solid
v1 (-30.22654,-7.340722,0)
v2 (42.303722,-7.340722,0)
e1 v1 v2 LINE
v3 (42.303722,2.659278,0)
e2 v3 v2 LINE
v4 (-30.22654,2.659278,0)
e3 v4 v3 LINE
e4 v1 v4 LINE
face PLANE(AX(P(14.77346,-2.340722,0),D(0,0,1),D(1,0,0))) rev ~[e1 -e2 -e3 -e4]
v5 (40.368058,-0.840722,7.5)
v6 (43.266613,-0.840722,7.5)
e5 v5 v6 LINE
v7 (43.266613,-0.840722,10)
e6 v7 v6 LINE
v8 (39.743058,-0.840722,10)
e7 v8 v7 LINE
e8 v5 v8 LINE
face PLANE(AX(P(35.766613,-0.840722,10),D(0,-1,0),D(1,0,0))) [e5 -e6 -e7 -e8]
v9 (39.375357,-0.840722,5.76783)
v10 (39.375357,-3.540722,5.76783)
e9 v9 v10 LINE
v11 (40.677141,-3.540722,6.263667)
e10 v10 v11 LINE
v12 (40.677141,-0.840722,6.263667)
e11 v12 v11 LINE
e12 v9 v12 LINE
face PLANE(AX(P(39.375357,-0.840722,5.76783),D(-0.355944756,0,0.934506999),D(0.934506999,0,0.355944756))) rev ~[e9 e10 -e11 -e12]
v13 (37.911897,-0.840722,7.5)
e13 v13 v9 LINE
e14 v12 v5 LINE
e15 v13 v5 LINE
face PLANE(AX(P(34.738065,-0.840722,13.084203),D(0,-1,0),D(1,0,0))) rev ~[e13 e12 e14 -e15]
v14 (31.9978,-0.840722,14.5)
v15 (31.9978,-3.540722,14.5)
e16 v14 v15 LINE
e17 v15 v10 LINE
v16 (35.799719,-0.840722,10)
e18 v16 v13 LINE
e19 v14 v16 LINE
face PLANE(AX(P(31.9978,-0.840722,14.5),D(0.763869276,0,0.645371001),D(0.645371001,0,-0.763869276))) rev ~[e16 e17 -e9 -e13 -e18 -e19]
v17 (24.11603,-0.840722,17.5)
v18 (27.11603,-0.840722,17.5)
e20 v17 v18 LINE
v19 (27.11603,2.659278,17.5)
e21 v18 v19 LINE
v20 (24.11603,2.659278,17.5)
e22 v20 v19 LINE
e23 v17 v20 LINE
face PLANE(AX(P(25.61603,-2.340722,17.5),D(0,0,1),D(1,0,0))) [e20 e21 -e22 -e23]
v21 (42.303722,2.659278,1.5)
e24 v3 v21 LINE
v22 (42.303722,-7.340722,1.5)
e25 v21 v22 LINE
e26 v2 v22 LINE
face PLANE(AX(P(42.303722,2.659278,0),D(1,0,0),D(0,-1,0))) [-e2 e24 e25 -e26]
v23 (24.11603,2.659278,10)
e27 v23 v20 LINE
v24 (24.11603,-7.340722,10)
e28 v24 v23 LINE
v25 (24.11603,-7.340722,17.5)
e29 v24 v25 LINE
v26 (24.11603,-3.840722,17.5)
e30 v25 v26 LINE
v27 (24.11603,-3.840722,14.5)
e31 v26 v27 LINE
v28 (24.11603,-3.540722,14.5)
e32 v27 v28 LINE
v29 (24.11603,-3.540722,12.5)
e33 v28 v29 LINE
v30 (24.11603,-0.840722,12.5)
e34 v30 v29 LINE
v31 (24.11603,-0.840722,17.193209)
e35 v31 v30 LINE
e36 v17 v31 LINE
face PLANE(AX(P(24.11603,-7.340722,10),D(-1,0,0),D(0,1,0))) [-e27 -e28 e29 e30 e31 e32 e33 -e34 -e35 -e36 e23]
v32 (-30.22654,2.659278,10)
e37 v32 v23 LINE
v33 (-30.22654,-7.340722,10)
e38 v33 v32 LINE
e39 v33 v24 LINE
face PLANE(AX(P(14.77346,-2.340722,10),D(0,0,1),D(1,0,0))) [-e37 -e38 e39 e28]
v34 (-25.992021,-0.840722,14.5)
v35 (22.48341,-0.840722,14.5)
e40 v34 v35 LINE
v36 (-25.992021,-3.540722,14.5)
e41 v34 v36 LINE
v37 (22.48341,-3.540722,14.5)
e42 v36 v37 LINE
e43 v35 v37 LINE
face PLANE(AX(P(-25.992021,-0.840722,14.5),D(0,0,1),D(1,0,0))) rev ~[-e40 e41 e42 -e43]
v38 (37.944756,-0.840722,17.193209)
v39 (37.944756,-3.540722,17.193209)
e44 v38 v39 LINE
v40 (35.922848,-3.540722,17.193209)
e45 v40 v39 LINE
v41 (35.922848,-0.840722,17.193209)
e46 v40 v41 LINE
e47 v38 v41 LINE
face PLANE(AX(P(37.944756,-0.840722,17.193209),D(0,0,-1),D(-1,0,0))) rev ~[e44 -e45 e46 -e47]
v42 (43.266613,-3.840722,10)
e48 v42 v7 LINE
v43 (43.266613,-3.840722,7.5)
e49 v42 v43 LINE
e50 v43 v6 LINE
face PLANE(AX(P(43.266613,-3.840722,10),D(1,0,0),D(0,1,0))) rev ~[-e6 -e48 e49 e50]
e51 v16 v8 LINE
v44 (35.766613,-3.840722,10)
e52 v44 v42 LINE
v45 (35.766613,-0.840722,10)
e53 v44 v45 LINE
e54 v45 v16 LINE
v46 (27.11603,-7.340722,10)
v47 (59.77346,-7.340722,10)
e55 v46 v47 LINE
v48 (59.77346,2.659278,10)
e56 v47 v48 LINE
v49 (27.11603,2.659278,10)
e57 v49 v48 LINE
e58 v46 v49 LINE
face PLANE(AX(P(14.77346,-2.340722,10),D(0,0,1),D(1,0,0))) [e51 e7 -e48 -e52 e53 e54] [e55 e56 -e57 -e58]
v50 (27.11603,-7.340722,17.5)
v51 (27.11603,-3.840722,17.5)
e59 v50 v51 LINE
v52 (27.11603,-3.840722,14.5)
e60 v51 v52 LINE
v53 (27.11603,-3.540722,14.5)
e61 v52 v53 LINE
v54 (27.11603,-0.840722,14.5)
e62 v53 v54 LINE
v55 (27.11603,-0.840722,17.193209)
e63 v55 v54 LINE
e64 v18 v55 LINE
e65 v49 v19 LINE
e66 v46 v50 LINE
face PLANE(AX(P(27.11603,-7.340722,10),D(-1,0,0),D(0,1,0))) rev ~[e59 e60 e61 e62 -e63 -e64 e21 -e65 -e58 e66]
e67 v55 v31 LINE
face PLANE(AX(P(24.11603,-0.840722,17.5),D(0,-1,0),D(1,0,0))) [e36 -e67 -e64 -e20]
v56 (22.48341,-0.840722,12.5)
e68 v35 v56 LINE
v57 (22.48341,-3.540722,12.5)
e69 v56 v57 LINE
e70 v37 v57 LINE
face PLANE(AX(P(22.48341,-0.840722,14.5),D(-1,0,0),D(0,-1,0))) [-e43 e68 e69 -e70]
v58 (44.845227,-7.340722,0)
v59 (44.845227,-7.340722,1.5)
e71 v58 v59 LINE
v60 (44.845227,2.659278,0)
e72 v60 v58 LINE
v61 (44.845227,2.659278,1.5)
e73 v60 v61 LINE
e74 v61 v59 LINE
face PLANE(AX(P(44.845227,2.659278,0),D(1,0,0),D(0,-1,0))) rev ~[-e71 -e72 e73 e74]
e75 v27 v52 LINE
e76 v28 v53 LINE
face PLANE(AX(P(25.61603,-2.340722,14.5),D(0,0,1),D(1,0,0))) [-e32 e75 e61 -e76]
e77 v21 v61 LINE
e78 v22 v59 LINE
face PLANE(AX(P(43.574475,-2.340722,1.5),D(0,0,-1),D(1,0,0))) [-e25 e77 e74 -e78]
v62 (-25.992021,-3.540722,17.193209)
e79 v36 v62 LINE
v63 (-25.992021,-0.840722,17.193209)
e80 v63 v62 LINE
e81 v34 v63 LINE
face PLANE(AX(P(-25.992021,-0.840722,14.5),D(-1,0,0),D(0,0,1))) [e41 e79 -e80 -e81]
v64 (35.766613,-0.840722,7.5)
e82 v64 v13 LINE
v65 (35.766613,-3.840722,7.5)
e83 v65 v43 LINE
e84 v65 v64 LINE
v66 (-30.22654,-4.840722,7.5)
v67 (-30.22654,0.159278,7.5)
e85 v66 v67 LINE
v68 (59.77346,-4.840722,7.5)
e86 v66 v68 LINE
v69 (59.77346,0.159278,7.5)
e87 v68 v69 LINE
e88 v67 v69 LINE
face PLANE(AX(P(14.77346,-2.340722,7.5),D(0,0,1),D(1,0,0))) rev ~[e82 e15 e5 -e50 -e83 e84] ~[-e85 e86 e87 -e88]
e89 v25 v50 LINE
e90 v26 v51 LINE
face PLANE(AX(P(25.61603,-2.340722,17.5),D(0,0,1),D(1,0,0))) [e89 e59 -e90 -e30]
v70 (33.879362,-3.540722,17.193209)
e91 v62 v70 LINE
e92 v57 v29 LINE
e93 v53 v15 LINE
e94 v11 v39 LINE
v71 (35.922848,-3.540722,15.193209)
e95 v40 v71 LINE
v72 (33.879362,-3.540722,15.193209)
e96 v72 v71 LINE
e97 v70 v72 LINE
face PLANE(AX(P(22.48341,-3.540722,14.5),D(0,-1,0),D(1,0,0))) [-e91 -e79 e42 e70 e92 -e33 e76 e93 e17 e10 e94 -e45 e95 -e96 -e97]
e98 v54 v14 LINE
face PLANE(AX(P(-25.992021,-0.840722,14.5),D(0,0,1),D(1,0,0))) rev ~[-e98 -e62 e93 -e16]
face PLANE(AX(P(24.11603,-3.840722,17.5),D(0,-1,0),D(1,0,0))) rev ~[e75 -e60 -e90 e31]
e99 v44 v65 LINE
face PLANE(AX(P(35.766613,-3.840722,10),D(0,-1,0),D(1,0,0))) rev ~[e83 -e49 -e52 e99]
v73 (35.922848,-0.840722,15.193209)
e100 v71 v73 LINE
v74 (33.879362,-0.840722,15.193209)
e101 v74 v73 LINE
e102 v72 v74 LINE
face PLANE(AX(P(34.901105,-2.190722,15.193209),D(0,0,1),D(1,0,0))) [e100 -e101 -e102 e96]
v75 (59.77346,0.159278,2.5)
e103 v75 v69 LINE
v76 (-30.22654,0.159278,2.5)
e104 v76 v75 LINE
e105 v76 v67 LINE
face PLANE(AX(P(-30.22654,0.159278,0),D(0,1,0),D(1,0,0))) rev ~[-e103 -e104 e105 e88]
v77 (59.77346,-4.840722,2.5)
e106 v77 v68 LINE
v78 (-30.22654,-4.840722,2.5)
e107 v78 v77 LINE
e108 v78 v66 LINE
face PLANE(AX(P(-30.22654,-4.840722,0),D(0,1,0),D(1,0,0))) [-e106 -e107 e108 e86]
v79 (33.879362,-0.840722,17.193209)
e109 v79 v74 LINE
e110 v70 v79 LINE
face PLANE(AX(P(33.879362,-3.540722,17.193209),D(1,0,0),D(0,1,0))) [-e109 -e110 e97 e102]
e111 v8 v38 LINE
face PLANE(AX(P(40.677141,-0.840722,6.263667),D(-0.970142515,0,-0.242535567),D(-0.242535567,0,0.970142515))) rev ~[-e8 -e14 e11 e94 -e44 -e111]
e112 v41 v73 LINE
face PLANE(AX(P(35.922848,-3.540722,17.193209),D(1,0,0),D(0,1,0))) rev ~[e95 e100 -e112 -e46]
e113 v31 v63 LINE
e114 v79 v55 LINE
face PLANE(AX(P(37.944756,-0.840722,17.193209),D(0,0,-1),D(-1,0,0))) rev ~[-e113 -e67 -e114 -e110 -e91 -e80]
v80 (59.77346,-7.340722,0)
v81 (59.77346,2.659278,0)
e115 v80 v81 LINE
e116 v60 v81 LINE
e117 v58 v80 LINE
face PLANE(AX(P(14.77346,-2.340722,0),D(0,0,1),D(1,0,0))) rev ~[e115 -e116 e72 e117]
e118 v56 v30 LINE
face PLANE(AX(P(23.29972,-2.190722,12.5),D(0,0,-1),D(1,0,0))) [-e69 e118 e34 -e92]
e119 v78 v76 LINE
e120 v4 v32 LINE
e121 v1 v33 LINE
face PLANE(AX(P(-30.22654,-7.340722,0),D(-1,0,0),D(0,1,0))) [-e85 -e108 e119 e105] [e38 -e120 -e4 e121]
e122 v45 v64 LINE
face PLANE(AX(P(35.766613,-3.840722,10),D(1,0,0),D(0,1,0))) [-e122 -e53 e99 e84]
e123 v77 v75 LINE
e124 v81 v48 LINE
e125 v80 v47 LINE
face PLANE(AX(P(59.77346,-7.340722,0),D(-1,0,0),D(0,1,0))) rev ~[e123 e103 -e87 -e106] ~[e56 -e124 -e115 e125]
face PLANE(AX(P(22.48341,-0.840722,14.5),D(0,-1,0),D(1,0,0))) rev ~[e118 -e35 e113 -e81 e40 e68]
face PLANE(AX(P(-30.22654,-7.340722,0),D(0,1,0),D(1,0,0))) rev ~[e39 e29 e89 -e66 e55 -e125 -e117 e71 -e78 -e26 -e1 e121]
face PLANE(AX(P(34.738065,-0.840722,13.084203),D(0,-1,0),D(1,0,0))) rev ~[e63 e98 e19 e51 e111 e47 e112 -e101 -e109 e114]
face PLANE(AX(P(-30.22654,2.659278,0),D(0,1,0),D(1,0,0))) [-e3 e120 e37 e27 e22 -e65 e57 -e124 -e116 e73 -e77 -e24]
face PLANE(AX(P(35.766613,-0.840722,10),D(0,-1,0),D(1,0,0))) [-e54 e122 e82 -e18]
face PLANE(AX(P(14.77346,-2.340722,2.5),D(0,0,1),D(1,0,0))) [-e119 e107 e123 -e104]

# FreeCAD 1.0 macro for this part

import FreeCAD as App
import Part
import Sketcher


def faces_at(feature, points):
    """Names of the faces that lie closest to the given points."""
    faces = feature.Shape.Faces
    near = lambda p: min(range(len(faces)), key=lambda i: faces[i].distToShape(Part.Vertex(*p))[0])
    return sorted({f"Face{near(p) + 1}" for p in points})


def add_polygon(sketch, points):
    """Adds a closed chain of lines whose ends are joined by coincident constraints."""
    first, n = sketch.GeometryCount, len(points)
    for a, b in zip(points, points[1:] + points[:1]):
        sketch.addGeometry(Part.LineSegment(App.Vector(*a, 0), App.Vector(*b, 0)), False)
    for i in range(n):
        sketch.addConstraint(Sketcher.Constraint("Coincident", first + i, 2, first + (i + 1) % n, 1))

doc = App.newDocument("Part")
params = doc.addObject("Spreadsheet::Sheet", "Params")
for row, (alias, value) in enumerate([
    ("sketch1_width", "90 mm"),
    ("sketch1_height", "10 mm"),
    ("pad1_length", "10 mm"),
    ("thickness_wall", "2.5 mm"),
    ("sketch2_height", "3 mm"),
    ("sketch2_width", "7.5 mm"),
    ("pocket1_length", "2.5 mm"),
    ("sketch3_width", "3 mm"),
    ("sketch3_height", "10 mm"),
    ("pad2_length", "7.5 mm"),
    ("sketch4_width", "3 mm"),
    ("pocket2_length", "3 mm"),
    ("pad3_length", "2.7 mm"),
    ("sketch6_height", "2.7 mm"),
    ("pad4_length", "2 mm"),
    ("sketch7_height", "2.7 mm"),
    ("pocket3_length", "2 mm"),
    ("sketch8_height", "10 mm"),
    ("pocket4_length", "1.5 mm"),
], start=1):
    params.set(f"A{row}", alias)
    params.set(f"B{row}", "=" + value)
    params.setAlias(f"B{row}", alias)

body = doc.addObject("PartDesign::Body", "Body")

sketch1 = body.newObject("Sketcher::SketchObject", "Sketch")
sketch1.AttachmentSupport = (doc.getObject("XY_Plane"), [""])
sketch1.MapMode = "FlatFace"
add_polygon(sketch1, [(-30.22654, 2.659278), (-30.22654, -7.340722), (59.77346, -7.340722), (59.77346, 2.659278)])
sketch1.addConstraint(Sketcher.Constraint("Vertical", 0))
sketch1.addConstraint(Sketcher.Constraint("Horizontal", 1))
sketch1.addConstraint(Sketcher.Constraint("Vertical", 2))
sketch1.addConstraint(Sketcher.Constraint("Horizontal", 3))
sketch1.addConstraint(Sketcher.Constraint("DistanceX", 1, 1, 1, 2, 90.0))
sketch1.addConstraint(Sketcher.Constraint("DistanceY", 0, 2, 0, 1, 10.0))
sketch1.addConstraint(Sketcher.Constraint("DistanceX", 0, 2, -1, 1, 30.22654))
sketch1.addConstraint(Sketcher.Constraint("DistanceY", 0, 2, -1, 1, 7.340722))
sketch1.setExpression("Constraints[8]", "Params.sketch1_width")
sketch1.setExpression("Constraints[9]", "Params.sketch1_height")
pad1 = body.newObject("PartDesign::Pad", "Pad")
pad1.Profile = sketch1
pad1.setExpression("Length", "Params.pad1_length")
doc.recompute()

thickness = body.newObject("PartDesign::Thickness", "Thickness")
thickness.Base = (pad1, faces_at(pad1, [(59.773, -2.341, 5), (-30.227, -2.341, 5)]))
thickness.setExpression("Value", "Params.thickness_wall")
thickness.Reversed = True
thickness.Join = "Arc"

sketch2 = body.newObject("Sketcher::SketchObject", "Sketch001")
sketch2.AttachmentSupport = (doc.getObject("XY_Plane"), [""])
sketch2.MapMode = "FlatFace"
sketch2.AttachmentOffset = App.Placement(App.Vector(0, 0, 10), App.Rotation())
add_polygon(sketch2, [(35.766613, -0.840722), (35.766613, -3.840722), (43.266613, -3.840722), (43.266613, -0.840722)])
sketch2.addConstraint(Sketcher.Constraint("Vertical", 0))
sketch2.addConstraint(Sketcher.Constraint("Horizontal", 1))
sketch2.addConstraint(Sketcher.Constraint("Vertical", 2))
sketch2.addConstraint(Sketcher.Constraint("Horizontal", 3))
sketch2.addConstraint(Sketcher.Constraint("DistanceY", 0, 2, 0, 1, 3.0))
sketch2.addConstraint(Sketcher.Constraint("DistanceX", 1, 1, 1, 2, 7.5))
sketch2.addConstraint(Sketcher.Constraint("DistanceX", -1, 1, 0, 2, 35.766613))
sketch2.addConstraint(Sketcher.Constraint("DistanceY", 0, 2, -1, 1, 3.840722))
sketch2.setExpression("Constraints[8]", "Params.sketch2_height")
sketch2.setExpression("Constraints[9]", "Params.sketch2_width")
pocket1 = body.newObject("PartDesign::Pocket", "Pocket")
pocket1.Profile = sketch2
pocket1.setExpression("Length", "Params.pocket1_length")

sketch3 = body.newObject("Sketcher::SketchObject", "Sketch002")
sketch3.AttachmentSupport = (doc.getObject("XY_Plane"), [""])
sketch3.MapMode = "FlatFace"
sketch3.AttachmentOffset = App.Placement(App.Vector(0, 0, 10), App.Rotation())
add_polygon(sketch3, [(24.11603, 2.659278), (24.11603, -7.340722), (27.11603, -7.340722), (27.11603, 2.659278)])
sketch3.addConstraint(Sketcher.Constraint("Vertical", 0))
sketch3.addConstraint(Sketcher.Constraint("Horizontal", 1))
sketch3.addConstraint(Sketcher.Constraint("Vertical", 2))
sketch3.addConstraint(Sketcher.Constraint("Horizontal", 3))
sketch3.addConstraint(Sketcher.Constraint("DistanceX", 1, 1, 1, 2, 3.0))
sketch3.addConstraint(Sketcher.Constraint("DistanceY", 0, 2, 0, 1, 10.0))
sketch3.addConstraint(Sketcher.Constraint("DistanceX", -1, 1, 0, 2, 24.11603))
sketch3.addConstraint(Sketcher.Constraint("DistanceY", 0, 2, -1, 1, 7.340722))
sketch3.setExpression("Constraints[8]", "Params.sketch3_width")
sketch3.setExpression("Constraints[9]", "Params.sketch3_height")
pad2 = body.newObject("PartDesign::Pad", "Pad001")
pad2.Profile = sketch3
pad2.setExpression("Length", "Params.pad2_length")

sketch4 = body.newObject("Sketcher::SketchObject", "Sketch003")
sketch4.AttachmentSupport = (doc.getObject("XY_Plane"), [""])
sketch4.MapMode = "FlatFace"
sketch4.AttachmentOffset = App.Placement(App.Vector(0, 0, 17.5), App.Rotation())
add_polygon(sketch4, [(24.11603, -0.840722), (24.11603, -3.840722), (27.11603, -3.840722), (27.11603, -0.840722)])
sketch4.addConstraint(Sketcher.Constraint("Vertical", 0))
sketch4.addConstraint(Sketcher.Constraint("Horizontal", 1))
sketch4.addConstraint(Sketcher.Constraint("Vertical", 2))
sketch4.addConstraint(Sketcher.Constraint("Horizontal", 3))
sketch4.addConstraint(Sketcher.Constraint("Equal", 3, 0))
sketch4.addConstraint(Sketcher.Constraint("DistanceX", 1, 1, 1, 2, 3.0))
sketch4.addConstraint(Sketcher.Constraint("DistanceX", -1, 1, 0, 2, 24.11603))
sketch4.addConstraint(Sketcher.Constraint("DistanceY", 0, 2, -1, 1, 3.840722))
sketch4.setExpression("Constraints[9]", "Params.sketch4_width")
pocket2 = body.newObject("PartDesign::Pocket", "Pocket001")
pocket2.Profile = sketch4
pocket2.setExpression("Length", "Params.pocket2_length")

sketch5 = body.newObject("Sketcher::SketchObject", "Sketch004")
sketch5.AttachmentSupport = (doc.getObject("XZ_Plane"), [""])
sketch5.MapMode = "FlatFace"
sketch5.AttachmentOffset = App.Placement(App.Vector(0, 0, 0.840722), App.Rotation())
add_polygon(sketch5, [(31.9978, 14.5), (39.375357, 5.76783), (40.677141, 6.263667), (37.944756, 17.193209), (27.11603, 17.193209), (-25.992021, 17.193209), (-25.992021, 14.5)])
sketch5.addConstraint(Sketcher.Constraint("Horizontal", 3))
sketch5.addConstraint(Sketcher.Constraint("Horizontal", 4))
sketch5.addConstraint(Sketcher.Constraint("Vertical", 5))
sketch5.addConstraint(Sketcher.Constraint("Horizontal", 6))
sketch5.addConstraint(Sketcher.Constraint("DistanceY", -1, 1, 5, 2, 14.5))
sketch5.addConstraint(Sketcher.Constraint("Distance", 0, 11.431498))
sketch5.addConstraint(Sketcher.Constraint("DistanceX", 4, 2, 4, 1, 53.108051))
sketch5.addConstraint(Sketcher.Constraint("DistanceX", 6, 1, 6, 2, 57.989821))
sketch5.addConstraint(Sketcher.Constraint("DistanceY", 5, 2, 5, 1, 2.693209))
sketch5.addConstraint(Sketcher.Constraint("DistanceX", -1, 1, 6, 2, 31.9978))
sketch5.addConstraint(Sketcher.Constraint("DistanceX", 2, 2, 0, 2, 1.430601))
sketch5.addConstraint(Sketcher.Constraint("DistanceX", 3, 2, 3, 1, 10.828726))
sketch5.addConstraint(Sketcher.Constraint("DistanceX", -1, 1, 1, 2, 40.677141))
sketch5.addConstraint(Sketcher.Constraint("Distance", 1, 1.393017))
pad3 = body.newObject("PartDesign::Pad", "Pad002")
pad3.Profile = sketch5
pad3.setExpression("Length", "Params.pad3_length")

sketch6 = body.newObject("Sketcher::SketchObject", "Sketch005")
sketch6.AttachmentSupport = (doc.getObject("XY_Plane"), [""])
sketch6.MapMode = "FlatFace"
sketch6.AttachmentOffset = App.Placement(App.Vector(0, 0, 14.5), App.Rotation())
add_polygon(sketch6, [(22.48341, -3.540722), (22.48341, -0.840722), (24.11603, -0.840722), (24.11603, -3.540722)])
sketch6.addConstraint(Sketcher.Constraint("Vertical", 0))
sketch6.addConstraint(Sketcher.Constraint("Horizontal", 1))
sketch6.addConstraint(Sketcher.Constraint("Vertical", 2))
sketch6.addConstraint(Sketcher.Constraint("Horizontal", 3))
sketch6.addConstraint(Sketcher.Constraint("DistanceY", 0, 1, 0, 2, 2.7))
sketch6.addConstraint(Sketcher.Constraint("DistanceX", 1, 1, 1, 2, 1.63262))
sketch6.addConstraint(Sketcher.Constraint("DistanceX", -1, 1, 0, 2, 22.48341))
sketch6.addConstraint(Sketcher.Constraint("DistanceY", 0, 2, -1, 1, 0.840722))
sketch6.setExpression("Constraints[8]", "Params.sketch6_height")
pad4 = body.newObject("PartDesign::Pad", "Pad003")
pad4.Profile = sketch6
pad4.setExpression("Length", "Params.pad4_length")
pad4.Reversed = True

sketch7 = body.newObject("Sketcher::SketchObject", "Sketch006")
sketch7.AttachmentSupport = (doc.getObject("XY_Plane"), [""])
sketch7.MapMode = "FlatFace"
sketch7.AttachmentOffset = App.Placement(App.Vector(0, 0, 17.193209), App.Rotation())
add_polygon(sketch7, [(33.879362, -0.840722), (33.879362, -3.540722), (35.922848, -3.540722), (35.922848, -0.840722)])
sketch7.addConstraint(Sketcher.Constraint("Vertical", 0))
sketch7.addConstraint(Sketcher.Constraint("Horizontal", 1))
sketch7.addConstraint(Sketcher.Constraint("Vertical", 2))
sketch7.addConstraint(Sketcher.Constraint("Horizontal", 3))
sketch7.addConstraint(Sketcher.Constraint("DistanceY", 0, 2, 0, 1, 2.7))
sketch7.addConstraint(Sketcher.Constraint("DistanceX", 1, 1, 1, 2, 2.043486))
sketch7.addConstraint(Sketcher.Constraint("DistanceX", -1, 1, 0, 2, 33.879362))
sketch7.addConstraint(Sketcher.Constraint("DistanceY", 0, 2, -1, 1, 3.540722))
sketch7.setExpression("Constraints[8]", "Params.sketch7_height")
pocket3 = body.newObject("PartDesign::Pocket", "Pocket002")
pocket3.Profile = sketch7
pocket3.setExpression("Length", "Params.pocket3_length")

sketch8 = body.newObject("Sketcher::SketchObject", "Sketch007")
sketch8.AttachmentSupport = (doc.getObject("XY_Plane"), [""])
sketch8.MapMode = "FlatFace"
add_polygon(sketch8, [(42.303722, -7.340722), (42.303722, 2.659278), (44.845227, 2.659278), (44.845227, -7.340722)])
sketch8.addConstraint(Sketcher.Constraint("Vertical", 0))
sketch8.addConstraint(Sketcher.Constraint("Horizontal", 1))
sketch8.addConstraint(Sketcher.Constraint("Vertical", 2))
sketch8.addConstraint(Sketcher.Constraint("Horizontal", 3))
sketch8.addConstraint(Sketcher.Constraint("DistanceY", 0, 1, 0, 2, 10.0))
sketch8.addConstraint(Sketcher.Constraint("DistanceX", 1, 1, 1, 2, 2.541505))
sketch8.addConstraint(Sketcher.Constraint("DistanceX", -1, 1, 0, 2, 42.303722))
sketch8.addConstraint(Sketcher.Constraint("DistanceY", -1, 1, 0, 2, 2.659278))
sketch8.setExpression("Constraints[8]", "Params.sketch8_height")
pocket4 = body.newObject("PartDesign::Pocket", "Pocket003")
pocket4.Profile = sketch8
pocket4.setExpression("Length", "Params.pocket4_length")
pocket4.Reversed = True

doc.recompute()
